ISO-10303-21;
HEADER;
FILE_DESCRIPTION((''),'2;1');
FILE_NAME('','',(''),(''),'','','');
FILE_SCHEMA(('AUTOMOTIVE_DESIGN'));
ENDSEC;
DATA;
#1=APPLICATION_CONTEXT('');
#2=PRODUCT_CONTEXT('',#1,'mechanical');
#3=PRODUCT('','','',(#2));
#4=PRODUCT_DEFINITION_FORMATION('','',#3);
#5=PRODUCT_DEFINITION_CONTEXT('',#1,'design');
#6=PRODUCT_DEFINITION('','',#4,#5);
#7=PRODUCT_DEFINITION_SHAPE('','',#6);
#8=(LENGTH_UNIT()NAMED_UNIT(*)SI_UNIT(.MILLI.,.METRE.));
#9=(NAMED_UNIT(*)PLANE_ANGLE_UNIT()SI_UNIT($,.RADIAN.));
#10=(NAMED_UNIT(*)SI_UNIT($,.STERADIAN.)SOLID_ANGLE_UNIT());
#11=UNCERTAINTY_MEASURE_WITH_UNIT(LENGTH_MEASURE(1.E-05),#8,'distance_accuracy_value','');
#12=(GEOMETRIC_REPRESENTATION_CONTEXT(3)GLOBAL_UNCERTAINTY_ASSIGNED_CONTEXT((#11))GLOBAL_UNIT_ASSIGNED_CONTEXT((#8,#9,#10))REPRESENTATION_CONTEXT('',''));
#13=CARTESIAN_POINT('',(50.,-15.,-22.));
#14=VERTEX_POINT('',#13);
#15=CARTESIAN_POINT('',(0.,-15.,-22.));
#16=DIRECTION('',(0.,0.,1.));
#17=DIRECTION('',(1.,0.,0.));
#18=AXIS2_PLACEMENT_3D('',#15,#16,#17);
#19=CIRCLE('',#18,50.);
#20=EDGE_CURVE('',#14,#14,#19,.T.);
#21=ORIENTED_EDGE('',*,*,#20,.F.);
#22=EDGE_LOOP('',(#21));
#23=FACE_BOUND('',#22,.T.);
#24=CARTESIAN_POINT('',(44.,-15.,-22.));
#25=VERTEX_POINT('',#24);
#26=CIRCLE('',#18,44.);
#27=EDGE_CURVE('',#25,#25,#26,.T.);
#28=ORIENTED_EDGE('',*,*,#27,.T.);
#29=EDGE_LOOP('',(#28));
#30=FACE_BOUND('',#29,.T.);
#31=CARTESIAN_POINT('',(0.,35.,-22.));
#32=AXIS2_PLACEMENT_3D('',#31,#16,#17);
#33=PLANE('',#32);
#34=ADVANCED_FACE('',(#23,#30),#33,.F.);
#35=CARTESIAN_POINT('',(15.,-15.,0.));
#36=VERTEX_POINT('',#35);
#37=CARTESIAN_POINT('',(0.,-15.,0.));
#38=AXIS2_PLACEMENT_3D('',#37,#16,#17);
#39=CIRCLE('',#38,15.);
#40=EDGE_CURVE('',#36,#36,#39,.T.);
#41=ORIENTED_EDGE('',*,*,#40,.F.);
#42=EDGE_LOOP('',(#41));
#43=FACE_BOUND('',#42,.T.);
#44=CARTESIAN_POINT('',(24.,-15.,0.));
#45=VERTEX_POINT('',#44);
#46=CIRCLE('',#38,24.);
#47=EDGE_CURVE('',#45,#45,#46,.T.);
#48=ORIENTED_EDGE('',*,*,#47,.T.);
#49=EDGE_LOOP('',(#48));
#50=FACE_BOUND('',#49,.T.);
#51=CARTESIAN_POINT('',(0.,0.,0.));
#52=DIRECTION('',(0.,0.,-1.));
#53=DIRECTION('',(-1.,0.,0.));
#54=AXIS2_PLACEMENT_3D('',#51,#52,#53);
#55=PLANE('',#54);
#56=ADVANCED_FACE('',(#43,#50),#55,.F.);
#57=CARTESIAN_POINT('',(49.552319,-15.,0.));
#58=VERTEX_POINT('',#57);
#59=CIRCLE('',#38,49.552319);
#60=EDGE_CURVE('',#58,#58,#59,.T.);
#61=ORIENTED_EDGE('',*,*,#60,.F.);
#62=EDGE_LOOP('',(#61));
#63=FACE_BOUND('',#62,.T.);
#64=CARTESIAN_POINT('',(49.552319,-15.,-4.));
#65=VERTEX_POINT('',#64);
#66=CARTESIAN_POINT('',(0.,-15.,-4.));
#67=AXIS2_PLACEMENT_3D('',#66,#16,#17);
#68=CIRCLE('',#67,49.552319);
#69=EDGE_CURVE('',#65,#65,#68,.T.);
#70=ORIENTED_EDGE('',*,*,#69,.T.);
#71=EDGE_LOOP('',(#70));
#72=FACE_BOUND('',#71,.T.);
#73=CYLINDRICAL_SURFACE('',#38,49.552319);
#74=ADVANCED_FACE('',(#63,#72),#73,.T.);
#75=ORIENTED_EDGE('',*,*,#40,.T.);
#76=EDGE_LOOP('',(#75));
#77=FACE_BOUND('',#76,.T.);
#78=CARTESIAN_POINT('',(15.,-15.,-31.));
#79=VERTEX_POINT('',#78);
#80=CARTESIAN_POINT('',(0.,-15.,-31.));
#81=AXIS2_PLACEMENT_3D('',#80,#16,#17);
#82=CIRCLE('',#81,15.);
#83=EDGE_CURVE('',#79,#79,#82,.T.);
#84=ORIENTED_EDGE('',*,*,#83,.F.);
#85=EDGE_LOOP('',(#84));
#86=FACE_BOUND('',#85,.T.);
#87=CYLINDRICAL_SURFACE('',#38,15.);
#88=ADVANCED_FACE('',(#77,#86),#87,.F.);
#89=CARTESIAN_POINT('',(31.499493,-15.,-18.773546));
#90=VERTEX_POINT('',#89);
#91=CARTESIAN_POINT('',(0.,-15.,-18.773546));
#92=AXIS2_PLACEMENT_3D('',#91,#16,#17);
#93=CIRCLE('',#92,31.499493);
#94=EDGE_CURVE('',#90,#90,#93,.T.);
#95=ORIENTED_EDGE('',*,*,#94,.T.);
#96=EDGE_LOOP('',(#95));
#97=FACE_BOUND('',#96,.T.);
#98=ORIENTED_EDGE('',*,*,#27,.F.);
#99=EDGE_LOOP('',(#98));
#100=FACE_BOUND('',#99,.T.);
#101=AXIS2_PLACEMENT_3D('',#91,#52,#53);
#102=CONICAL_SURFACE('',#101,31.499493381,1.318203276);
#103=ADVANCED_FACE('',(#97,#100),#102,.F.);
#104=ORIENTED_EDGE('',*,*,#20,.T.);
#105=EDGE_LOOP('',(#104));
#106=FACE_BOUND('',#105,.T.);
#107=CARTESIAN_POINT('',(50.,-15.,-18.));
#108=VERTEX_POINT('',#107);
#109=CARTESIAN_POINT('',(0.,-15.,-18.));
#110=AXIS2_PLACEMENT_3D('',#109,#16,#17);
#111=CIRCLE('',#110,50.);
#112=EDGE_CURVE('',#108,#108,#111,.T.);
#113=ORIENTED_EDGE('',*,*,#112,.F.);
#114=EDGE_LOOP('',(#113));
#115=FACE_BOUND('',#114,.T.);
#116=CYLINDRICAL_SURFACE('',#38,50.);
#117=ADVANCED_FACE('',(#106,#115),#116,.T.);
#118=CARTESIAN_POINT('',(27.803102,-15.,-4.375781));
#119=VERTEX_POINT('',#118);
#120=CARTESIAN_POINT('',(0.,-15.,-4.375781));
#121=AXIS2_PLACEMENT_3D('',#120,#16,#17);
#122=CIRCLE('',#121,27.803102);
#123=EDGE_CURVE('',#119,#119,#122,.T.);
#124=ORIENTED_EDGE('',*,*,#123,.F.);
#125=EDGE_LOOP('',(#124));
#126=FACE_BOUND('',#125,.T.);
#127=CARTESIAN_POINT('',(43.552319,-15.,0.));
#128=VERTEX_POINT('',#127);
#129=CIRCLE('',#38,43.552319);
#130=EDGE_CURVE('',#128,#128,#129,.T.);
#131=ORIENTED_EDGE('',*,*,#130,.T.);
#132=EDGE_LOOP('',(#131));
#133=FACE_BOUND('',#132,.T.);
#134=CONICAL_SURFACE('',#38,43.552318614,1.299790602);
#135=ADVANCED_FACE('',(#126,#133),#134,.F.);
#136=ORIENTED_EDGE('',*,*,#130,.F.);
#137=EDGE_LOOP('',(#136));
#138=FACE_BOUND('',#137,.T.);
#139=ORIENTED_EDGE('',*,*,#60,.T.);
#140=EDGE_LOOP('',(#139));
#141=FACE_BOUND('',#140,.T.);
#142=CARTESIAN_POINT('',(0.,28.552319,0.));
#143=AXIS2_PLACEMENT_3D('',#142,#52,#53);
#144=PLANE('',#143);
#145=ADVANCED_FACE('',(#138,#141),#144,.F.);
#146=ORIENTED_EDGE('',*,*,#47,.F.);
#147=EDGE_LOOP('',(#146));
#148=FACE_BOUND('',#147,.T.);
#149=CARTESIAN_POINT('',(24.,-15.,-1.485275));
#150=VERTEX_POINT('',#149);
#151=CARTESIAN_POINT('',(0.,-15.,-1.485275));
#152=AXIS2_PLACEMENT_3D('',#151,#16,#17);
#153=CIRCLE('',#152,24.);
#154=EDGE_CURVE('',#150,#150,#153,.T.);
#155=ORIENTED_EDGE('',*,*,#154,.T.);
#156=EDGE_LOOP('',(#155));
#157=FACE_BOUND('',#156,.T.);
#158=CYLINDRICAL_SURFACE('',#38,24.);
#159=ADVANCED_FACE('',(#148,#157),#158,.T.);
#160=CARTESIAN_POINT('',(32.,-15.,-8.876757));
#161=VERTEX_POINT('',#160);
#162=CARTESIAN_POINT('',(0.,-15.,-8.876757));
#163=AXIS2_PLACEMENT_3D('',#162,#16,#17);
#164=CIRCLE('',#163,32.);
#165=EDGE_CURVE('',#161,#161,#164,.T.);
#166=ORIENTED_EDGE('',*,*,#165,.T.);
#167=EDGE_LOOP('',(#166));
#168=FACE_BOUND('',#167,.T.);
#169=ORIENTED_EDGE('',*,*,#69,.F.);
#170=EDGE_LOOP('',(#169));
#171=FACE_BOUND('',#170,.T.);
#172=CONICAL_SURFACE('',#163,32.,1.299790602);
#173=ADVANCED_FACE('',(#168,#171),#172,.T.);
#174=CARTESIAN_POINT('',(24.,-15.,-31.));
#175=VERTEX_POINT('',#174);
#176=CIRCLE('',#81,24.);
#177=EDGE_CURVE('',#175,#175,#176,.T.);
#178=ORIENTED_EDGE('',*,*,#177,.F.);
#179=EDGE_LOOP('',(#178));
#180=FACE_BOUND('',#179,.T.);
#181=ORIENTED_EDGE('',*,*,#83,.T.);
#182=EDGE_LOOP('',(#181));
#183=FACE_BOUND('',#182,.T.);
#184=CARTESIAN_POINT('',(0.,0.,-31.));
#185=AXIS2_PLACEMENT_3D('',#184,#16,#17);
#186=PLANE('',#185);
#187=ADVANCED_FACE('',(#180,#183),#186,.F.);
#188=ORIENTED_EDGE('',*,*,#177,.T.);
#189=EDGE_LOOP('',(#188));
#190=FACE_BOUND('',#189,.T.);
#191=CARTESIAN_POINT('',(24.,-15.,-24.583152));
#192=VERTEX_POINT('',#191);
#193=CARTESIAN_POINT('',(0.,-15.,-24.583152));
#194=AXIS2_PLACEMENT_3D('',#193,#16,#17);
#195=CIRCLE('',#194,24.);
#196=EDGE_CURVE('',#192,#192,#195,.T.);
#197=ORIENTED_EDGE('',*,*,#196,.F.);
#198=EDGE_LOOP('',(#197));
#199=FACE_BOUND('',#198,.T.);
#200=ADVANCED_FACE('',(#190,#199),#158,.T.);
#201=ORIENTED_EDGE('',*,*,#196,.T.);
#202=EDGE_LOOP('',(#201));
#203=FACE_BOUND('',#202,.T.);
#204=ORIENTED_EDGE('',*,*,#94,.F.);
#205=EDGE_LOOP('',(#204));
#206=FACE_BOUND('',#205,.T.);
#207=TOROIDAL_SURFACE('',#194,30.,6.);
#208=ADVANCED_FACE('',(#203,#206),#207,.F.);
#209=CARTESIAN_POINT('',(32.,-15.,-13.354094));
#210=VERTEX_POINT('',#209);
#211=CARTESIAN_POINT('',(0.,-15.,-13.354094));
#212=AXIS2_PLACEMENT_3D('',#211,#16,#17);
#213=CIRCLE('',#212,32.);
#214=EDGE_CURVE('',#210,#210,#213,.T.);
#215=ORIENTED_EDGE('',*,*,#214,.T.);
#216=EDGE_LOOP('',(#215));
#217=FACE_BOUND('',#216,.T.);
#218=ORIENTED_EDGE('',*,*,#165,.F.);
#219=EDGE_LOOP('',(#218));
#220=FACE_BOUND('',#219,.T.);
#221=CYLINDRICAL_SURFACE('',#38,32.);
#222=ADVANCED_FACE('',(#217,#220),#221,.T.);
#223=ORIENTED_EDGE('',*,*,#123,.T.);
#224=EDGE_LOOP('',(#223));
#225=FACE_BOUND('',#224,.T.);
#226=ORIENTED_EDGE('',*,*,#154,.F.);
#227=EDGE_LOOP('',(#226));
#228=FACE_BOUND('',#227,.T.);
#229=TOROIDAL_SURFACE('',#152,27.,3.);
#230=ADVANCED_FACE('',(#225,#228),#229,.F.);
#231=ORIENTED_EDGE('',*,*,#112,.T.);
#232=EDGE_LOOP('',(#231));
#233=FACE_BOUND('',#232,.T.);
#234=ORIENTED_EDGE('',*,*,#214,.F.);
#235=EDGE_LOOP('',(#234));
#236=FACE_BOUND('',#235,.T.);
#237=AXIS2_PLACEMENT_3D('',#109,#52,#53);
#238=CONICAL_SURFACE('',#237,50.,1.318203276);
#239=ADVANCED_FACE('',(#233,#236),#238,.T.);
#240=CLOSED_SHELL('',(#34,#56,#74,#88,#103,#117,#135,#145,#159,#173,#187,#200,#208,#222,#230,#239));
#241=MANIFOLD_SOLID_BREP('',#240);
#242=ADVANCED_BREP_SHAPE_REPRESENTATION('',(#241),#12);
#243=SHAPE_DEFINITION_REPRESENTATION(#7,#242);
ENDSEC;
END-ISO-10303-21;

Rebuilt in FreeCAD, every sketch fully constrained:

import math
import FreeCAD as App
import Part
import Sketcher

V = App.Vector

doc = App.newDocument("Part")
body = doc.addObject("PartDesign::Body", "Body")

sketch1 = body.newObject("Sketcher::SketchObject", "Sketch")
sketch1.AttachmentSupport = (doc.getObject("YZ_Plane"), [""])
sketch1.MapMode = "FlatFace"
sketch1.addGeometry([
    Part.LineSegment(V(0, 0, 0), V(0, -31, 0)),
    Part.LineSegment(V(0, -31, 0), V(9, -31, 0)),
    Part.LineSegment(V(9, -31, 0), V(9, -24.583152, 0)),
    Part.ArcOfCircle(Part.Circle(V(15, -24.583152, 0), V(0, 0, 1), 6), math.radians(75.527484), math.radians(180)),
    Part.LineSegment(V(16.499493, -18.773546, 0), V(29, -22, 0)),
    Part.LineSegment(V(29, -22, 0), V(35, -22, 0)),
    Part.LineSegment(V(35, -22, 0), V(35, -18, 0)),
    Part.LineSegment(V(35, -18, 0), V(17, -13.354094, 0)),
    Part.LineSegment(V(17, -13.354094, 0), V(17, -8.876757, 0)),
    Part.LineSegment(V(17, -8.876757, 0), V(34.552319, -4, 0)),
    Part.LineSegment(V(34.552319, -4, 0), V(34.552319, 0, 0)),
    Part.LineSegment(V(34.552319, 0, 0), V(28.552319, 0, 0)),
    Part.LineSegment(V(28.552319, 0, 0), V(12.803102, -4.375781, 0)),
    Part.ArcOfCircle(Part.Circle(V(12, -1.485275, 0), V(0, 0, 1), 3), math.radians(180), math.radians(285.527484)),
    Part.LineSegment(V(9, -1.485275, 0), V(9, 0, 0)),
    Part.LineSegment(V(9, 0, 0), V(0, 0, 0)),
], False)
sketch1.addGeometry(Part.LineSegment(V(-15, 0, 0), V(-15, -31, 0)), True)
sketch1.addConstraint([
    Sketcher.Constraint("Coincident", 0, 2, 1, 1),
    Sketcher.Constraint("Coincident", 1, 2, 2, 1),
    Sketcher.Constraint("Tangent", 2, 2, 3, 2),
    Sketcher.Constraint("Tangent", 3, 1, 4, 1),
    Sketcher.Constraint("Coincident", 4, 2, 5, 1),
    Sketcher.Constraint("Coincident", 5, 2, 6, 1),
    Sketcher.Constraint("Coincident", 6, 2, 7, 1),
    Sketcher.Constraint("Coincident", 7, 2, 8, 1),
    Sketcher.Constraint("Coincident", 8, 2, 9, 1),
    Sketcher.Constraint("Coincident", 9, 2, 10, 1),
    Sketcher.Constraint("Coincident", 10, 2, 11, 1),
    Sketcher.Constraint("Coincident", 11, 2, 12, 1),
    Sketcher.Constraint("Tangent", 12, 2, 13, 2),
    Sketcher.Constraint("Tangent", 13, 1, 14, 1),
    Sketcher.Constraint("Coincident", 14, 2, 15, 1),
    Sketcher.Constraint("Coincident", 15, 2, 0, 1),
    Sketcher.Constraint("Vertical", 0),
    Sketcher.Constraint("Horizontal", 1),
    Sketcher.Constraint("Vertical", 2),
    Sketcher.Constraint("Horizontal", 5),
    Sketcher.Constraint("Vertical", 6),
    Sketcher.Constraint("Vertical", 8),
    Sketcher.Constraint("Vertical", 10),
    Sketcher.Constraint("Horizontal", 11),
    Sketcher.Constraint("Vertical", 14),
    Sketcher.Constraint("Horizontal", 15),
    Sketcher.Constraint("Vertical", 16),
    Sketcher.Constraint("Coincident", 15, 2, -1, 1),
    Sketcher.Constraint("PointOnObject", 10, 2, -1),
    Sketcher.Constraint("PointOnObject", 16, 1, -1),
    Sketcher.Constraint("Parallel", 4, 7),
    Sketcher.Constraint("Parallel", 9, 12),
    Sketcher.Constraint("Horizontal", 1, 2, 16, 2),
    Sketcher.Constraint("Vertical", 2, 2, 13, 1),
    Sketcher.Constraint("Equal", 5, 11),
    Sketcher.Constraint("Equal", 6, 10),
    Sketcher.Constraint("Radius", 3, 6.0),
    Sketcher.Constraint("Radius", 13, 3.0),
    Sketcher.Constraint("DistanceX", 1, 1, 1, 2, 9.0),
    Sketcher.Constraint("DistanceX", 5, 1, 5, 2, 6.0),
    Sketcher.Constraint("DistanceY", 0, 2, 0, 1, 31.0),
    Sketcher.Constraint("DistanceY", 6, 1, 6, 2, 4.0),
    Sketcher.Constraint("DistanceX", -1, 1, 4, 2, 29.0),
    Sketcher.Constraint("DistanceY", 4, 2, -1, 1, 22.0),
    Sketcher.Constraint("DistanceX", -1, 1, 7, 2, 17.0),
    Sketcher.Constraint("DistanceX", 16, 1, -1, 1, 15.0),
    Sketcher.Constraint("Distance", 7, 18.589902),
    Sketcher.Constraint("DistanceX", -1, 1, 12, 2, 12.803102),
    Sketcher.Constraint("DistanceY", 8, 1, 8, 2, 4.477337),
])
revolution = body.newObject("PartDesign::Revolution", "Revolution")
revolution.Profile = sketch1
revolution.ReferenceAxis = (sketch1, ["Axis0"])
revolution.Angle = 360

doc.recompute()
